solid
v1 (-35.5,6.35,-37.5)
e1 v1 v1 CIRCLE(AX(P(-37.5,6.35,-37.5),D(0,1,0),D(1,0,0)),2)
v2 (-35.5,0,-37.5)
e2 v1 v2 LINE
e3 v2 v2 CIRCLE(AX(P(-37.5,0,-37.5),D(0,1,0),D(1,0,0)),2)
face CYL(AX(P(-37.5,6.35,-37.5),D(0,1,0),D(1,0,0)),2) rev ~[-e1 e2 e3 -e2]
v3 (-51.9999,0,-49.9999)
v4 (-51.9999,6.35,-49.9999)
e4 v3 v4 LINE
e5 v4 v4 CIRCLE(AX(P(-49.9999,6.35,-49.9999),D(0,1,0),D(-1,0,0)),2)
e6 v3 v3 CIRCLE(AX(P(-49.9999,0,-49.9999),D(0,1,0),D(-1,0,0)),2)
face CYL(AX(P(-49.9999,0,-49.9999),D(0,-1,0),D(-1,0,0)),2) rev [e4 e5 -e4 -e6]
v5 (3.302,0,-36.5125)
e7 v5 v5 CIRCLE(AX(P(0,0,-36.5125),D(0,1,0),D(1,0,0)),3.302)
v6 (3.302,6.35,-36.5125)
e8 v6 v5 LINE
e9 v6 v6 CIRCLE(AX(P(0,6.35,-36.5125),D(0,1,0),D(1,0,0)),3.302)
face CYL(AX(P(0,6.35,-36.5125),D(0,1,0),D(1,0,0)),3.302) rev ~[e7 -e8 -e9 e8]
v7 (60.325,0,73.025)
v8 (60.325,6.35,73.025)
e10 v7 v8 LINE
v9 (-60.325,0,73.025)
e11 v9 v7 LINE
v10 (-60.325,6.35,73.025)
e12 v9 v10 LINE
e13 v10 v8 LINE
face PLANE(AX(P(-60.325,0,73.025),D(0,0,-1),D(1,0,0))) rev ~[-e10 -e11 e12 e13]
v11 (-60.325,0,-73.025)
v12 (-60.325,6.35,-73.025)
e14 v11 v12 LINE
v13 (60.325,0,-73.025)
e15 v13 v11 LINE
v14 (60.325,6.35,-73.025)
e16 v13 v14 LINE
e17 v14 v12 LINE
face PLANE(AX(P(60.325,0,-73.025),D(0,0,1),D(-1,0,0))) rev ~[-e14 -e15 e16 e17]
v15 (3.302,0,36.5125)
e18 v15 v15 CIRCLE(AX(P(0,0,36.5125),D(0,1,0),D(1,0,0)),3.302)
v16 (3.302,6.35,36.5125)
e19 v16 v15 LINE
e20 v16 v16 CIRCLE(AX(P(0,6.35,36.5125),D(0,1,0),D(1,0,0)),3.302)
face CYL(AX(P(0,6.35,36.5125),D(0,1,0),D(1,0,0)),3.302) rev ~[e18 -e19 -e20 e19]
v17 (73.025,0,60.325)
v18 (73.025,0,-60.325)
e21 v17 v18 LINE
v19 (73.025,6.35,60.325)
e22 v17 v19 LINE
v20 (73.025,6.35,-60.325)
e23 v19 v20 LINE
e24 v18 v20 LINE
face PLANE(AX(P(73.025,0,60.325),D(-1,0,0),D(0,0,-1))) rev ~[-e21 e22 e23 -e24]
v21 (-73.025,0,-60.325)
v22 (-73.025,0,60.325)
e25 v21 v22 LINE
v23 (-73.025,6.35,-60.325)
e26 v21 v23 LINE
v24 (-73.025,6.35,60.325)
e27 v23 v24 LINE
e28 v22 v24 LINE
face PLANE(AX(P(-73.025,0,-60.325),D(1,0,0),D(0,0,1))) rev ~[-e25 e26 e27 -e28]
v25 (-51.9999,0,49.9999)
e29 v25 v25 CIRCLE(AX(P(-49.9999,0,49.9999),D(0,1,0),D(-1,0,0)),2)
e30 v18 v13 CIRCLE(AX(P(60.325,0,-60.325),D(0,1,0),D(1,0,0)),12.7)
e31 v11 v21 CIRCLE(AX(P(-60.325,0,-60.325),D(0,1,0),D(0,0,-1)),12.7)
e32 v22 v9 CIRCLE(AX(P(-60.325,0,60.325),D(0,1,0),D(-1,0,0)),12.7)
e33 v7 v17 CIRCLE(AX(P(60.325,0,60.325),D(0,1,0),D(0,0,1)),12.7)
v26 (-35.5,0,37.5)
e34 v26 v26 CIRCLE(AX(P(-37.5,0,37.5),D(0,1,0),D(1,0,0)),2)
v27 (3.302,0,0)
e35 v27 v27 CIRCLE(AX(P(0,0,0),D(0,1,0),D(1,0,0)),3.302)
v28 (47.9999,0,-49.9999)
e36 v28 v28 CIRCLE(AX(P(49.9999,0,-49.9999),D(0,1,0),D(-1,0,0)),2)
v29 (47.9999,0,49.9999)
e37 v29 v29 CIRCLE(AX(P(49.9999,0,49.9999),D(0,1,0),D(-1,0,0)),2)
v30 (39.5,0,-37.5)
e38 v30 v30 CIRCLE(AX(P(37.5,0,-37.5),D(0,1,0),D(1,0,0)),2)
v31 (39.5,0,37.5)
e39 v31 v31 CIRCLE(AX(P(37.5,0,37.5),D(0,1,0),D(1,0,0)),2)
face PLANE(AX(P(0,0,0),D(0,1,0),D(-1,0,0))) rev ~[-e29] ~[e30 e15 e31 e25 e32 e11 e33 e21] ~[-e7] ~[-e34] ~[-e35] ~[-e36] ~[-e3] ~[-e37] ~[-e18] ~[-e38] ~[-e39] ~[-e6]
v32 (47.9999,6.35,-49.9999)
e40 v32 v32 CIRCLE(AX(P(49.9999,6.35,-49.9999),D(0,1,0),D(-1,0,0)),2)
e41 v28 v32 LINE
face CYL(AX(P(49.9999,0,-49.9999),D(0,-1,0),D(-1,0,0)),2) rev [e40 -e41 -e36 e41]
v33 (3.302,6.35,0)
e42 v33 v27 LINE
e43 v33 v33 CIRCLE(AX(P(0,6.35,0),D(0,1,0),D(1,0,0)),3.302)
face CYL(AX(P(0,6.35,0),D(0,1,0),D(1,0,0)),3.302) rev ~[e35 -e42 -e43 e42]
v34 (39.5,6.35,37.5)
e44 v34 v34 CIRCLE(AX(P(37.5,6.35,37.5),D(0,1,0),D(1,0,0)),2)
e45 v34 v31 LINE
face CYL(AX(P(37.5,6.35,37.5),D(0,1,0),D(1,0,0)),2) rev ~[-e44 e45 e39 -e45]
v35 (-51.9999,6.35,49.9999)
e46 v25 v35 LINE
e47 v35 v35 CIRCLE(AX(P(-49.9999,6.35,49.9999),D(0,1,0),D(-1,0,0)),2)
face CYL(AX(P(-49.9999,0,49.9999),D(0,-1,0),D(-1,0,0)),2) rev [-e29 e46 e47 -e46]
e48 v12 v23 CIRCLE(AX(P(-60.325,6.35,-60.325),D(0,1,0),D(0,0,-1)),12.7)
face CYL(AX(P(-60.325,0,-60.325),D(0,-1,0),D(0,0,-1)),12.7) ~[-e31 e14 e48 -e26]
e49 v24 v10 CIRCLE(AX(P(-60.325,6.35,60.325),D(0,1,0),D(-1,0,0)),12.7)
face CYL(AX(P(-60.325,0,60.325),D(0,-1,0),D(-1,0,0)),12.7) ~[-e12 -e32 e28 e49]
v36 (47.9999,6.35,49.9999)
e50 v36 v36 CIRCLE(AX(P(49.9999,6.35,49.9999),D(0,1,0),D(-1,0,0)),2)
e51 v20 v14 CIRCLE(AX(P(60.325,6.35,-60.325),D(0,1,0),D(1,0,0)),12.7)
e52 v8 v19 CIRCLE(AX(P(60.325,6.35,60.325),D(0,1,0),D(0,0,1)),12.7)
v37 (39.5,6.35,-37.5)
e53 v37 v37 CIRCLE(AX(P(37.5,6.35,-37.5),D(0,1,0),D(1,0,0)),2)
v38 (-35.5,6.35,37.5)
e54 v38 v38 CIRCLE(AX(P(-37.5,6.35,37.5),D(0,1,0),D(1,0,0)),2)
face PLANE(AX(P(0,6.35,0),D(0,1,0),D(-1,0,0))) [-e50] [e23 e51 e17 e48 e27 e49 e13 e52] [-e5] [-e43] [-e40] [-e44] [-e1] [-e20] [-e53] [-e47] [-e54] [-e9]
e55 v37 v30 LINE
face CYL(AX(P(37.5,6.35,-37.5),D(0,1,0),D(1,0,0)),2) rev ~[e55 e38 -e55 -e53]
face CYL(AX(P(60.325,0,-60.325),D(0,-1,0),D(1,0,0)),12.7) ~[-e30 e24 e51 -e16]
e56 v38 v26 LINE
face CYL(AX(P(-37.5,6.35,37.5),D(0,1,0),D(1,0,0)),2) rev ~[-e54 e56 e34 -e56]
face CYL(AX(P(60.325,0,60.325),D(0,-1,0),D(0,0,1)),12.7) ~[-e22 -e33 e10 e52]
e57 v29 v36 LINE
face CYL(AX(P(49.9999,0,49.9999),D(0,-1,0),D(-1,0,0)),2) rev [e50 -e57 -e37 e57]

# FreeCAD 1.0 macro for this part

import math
import FreeCAD as App
import Part
import Sketcher
from FreeCAD import Vector
Q = App.Units.Quantity

doc = App.newDocument("Part")
body = doc.addObject("PartDesign::Body", "Body")

# Sketch on XZ plane
sketch1 = body.newObject("Sketcher::SketchObject", "Sketch")
sketch1.AttachmentSupport = (doc.getObject("XZ_Plane"), [""])
sketch1.MapMode = "FlatFace"
sketch1.addGeometry(Part.ArcOfCircle(Part.Circle(Vector(-60.3, 60.3, 0), Vector(0, 0, 1), 12.7), math.radians(90), math.radians(180)), False)
sketch1.addGeometry(Part.LineSegment(Vector(-60.3, 73, 0), Vector(60.3, 73, 0)), False)
sketch1.addGeometry(Part.ArcOfCircle(Part.Circle(Vector(60.3, 60.3, 0), Vector(0, 0, 1), 12.7), math.radians(0), math.radians(90)), False)
sketch1.addGeometry(Part.LineSegment(Vector(73, 60.3, 0), Vector(73, -60.3, 0)), False)
sketch1.addGeometry(Part.ArcOfCircle(Part.Circle(Vector(60.3, -60.3, 0), Vector(0, 0, 1), 12.7), math.radians(-90), math.radians(0)), False)
sketch1.addGeometry(Part.LineSegment(Vector(60.3, -73, 0), Vector(-60.3, -73, 0)), False)
sketch1.addGeometry(Part.ArcOfCircle(Part.Circle(Vector(-60.3, -60.3, 0), Vector(0, 0, 1), 12.7), math.radians(180), math.radians(270)), False)
sketch1.addGeometry(Part.LineSegment(Vector(-73, -60.3, 0), Vector(-73, 60.3, 0)), False)
sketch1.addGeometry(Part.Circle(Vector(50, -50, 0), Vector(0, 0, 1), 2), False)
sketch1.addGeometry(Part.Circle(Vector(-50, -50, 0), Vector(0, 0, 1), 2), False)
sketch1.addGeometry(Part.Circle(Vector(50, 50, 0), Vector(0, 0, 1), 2), False)
sketch1.addGeometry(Part.Circle(Vector(-50, 50, 0), Vector(0, 0, 1), 2), False)
sketch1.addConstraint(Sketcher.Constraint("Tangent", 0, 1, 1, 1))
sketch1.addConstraint(Sketcher.Constraint("Tangent", 1, 2, 2, 2))
sketch1.addConstraint(Sketcher.Constraint("Tangent", 2, 1, 3, 1))
sketch1.addConstraint(Sketcher.Constraint("Tangent", 3, 2, 4, 2))
sketch1.addConstraint(Sketcher.Constraint("Tangent", 4, 1, 5, 1))
sketch1.addConstraint(Sketcher.Constraint("Tangent", 5, 2, 6, 2))
sketch1.addConstraint(Sketcher.Constraint("Tangent", 6, 1, 7, 1))
sketch1.addConstraint(Sketcher.Constraint("Tangent", 7, 2, 0, 2))
sketch1.addConstraint(Sketcher.Constraint("Horizontal", 1))
sketch1.addConstraint(Sketcher.Constraint("Vertical", 3))
sketch1.addConstraint(Sketcher.Constraint("Horizontal", 5))
sketch1.addConstraint(Sketcher.Constraint("Vertical", 7))
sketch1.addConstraint(Sketcher.Constraint("Equal", 0, 2))
sketch1.addConstraint(Sketcher.Constraint("Equal", 2, 4))
sketch1.addConstraint(Sketcher.Constraint("Equal", 4, 6))
sketch1.addConstraint(Sketcher.Constraint("Equal", 8, 9))
sketch1.addConstraint(Sketcher.Constraint("Equal", 9, 10))
sketch1.addConstraint(Sketcher.Constraint("Equal", 10, 11))
sketch1.addConstraint(Sketcher.Constraint("Symmetric", 0, 3, 4, 3, -1, 1))
sketch1.addConstraint(Sketcher.Constraint("Symmetric", 9, 3, 10, 3, -1, 1))
sketch1.addConstraint(Sketcher.Constraint("Symmetric", 8, 3, 11, 3, -1, 1))
sketch1.addConstraint(Sketcher.Constraint("Symmetric", 8, 3, 9, 3, -2))
sketch1.addConstraint(Sketcher.Constraint("Equal", 5, 3))
sketch1.addConstraint(Sketcher.Constraint("Radius", 0, Q("0.5 in")))
sketch1.addConstraint(Sketcher.Constraint("Diameter", 8, 4.0))
sketch1.addConstraint(Sketcher.Constraint("DistanceY", -1, 1, 0, 1, Q("2.875 in")))
sketch1.addConstraint(Sketcher.Constraint("DistanceX", 9, 3, 8, 3, Q("3.937 in")))
sketch1.addConstraint(Sketcher.Constraint("DistanceY", 8, 3, 10, 3, Q("3.937 in")))
pad1 = body.newObject("PartDesign::Pad", "Pad")
pad1.Profile = sketch1
pad1.Length = Q("0.25 in")
pad1.Reversed = True

# Sketch on XZ plane
sketch2 = body.newObject("Sketcher::SketchObject", "Sketch001")
sketch2.AttachmentSupport = (doc.getObject("XZ_Plane"), [""])
sketch2.MapMode = "FlatFace"
sketch2.AttachmentOffset = App.Placement(Vector(0, 0, -0.25 * 25.4), App.Rotation())
sketch2.addGeometry(Part.Circle(Vector(-37.5, 37.5, 0), Vector(0, 0, 1), 2), False)
sketch2.addGeometry(Part.Circle(Vector(-37.5, -37.5, 0), Vector(0, 0, 1), 2), False)
sketch2.addGeometry(Part.Circle(Vector(37.5, 37.5, 0), Vector(0, 0, 1), 2), False)
sketch2.addGeometry(Part.Circle(Vector(37.5, -37.5, 0), Vector(0, 0, 1), 2), False)
sketch2.addConstraint(Sketcher.Constraint("Equal", 0, 1))
sketch2.addConstraint(Sketcher.Constraint("Equal", 1, 2))
sketch2.addConstraint(Sketcher.Constraint("Equal", 2, 3))
sketch2.addConstraint(Sketcher.Constraint("Symmetric", 1, 3, 2, 3, -1, 1))
sketch2.addConstraint(Sketcher.Constraint("Symmetric", 0, 3, 3, 3, -1, 1))
sketch2.addConstraint(Sketcher.Constraint("Symmetric", 0, 3, 2, 3, -2))
sketch2.addConstraint(Sketcher.Constraint("Diameter", 0, 4.0))
sketch2.addConstraint(Sketcher.Constraint("DistanceY", 1, 3, 0, 3, 75.0))
sketch2.addConstraint(Sketcher.Constraint("DistanceX", 0, 3, 2, 3, 75.0))
pocket1 = body.newObject("PartDesign::Pocket", "Pocket")
pocket1.Profile = sketch2
pocket1.Length = Q("0.25 in")
pocket1.Reversed = True

# Sketch on XZ plane
sketch3 = body.newObject("Sketcher::SketchObject", "Sketch002")
sketch3.AttachmentSupport = (doc.getObject("XZ_Plane"), [""])
sketch3.MapMode = "FlatFace"
sketch3.AttachmentOffset = App.Placement(Vector(0, 0, -0.25 * 25.4), App.Rotation())
sketch3.addGeometry(Part.Circle(Vector(0, 36.5, 0), Vector(0, 0, 1), 3.3), False)
sketch3.addGeometry(Part.Circle(Vector(0, 0, 0), Vector(0, 0, 1), 3.3), False)
sketch3.addGeometry(Part.Circle(Vector(0, -36.5, 0), Vector(0, 0, 1), 3.3), False)
sketch3.addConstraint(Sketcher.Constraint("Coincident", 1, 3, -1, 1))
sketch3.addConstraint(Sketcher.Constraint("Equal", 0, 1))
sketch3.addConstraint(Sketcher.Constraint("Equal", 1, 2))
sketch3.addConstraint(Sketcher.Constraint("Symmetric", 0, 3, 2, 3, -1, 1))
sketch3.addConstraint(Sketcher.Constraint("PointOnObject", 0, 3, -2))
sketch3.addConstraint(Sketcher.Constraint("Diameter", 0, Q("0.26 in")))
sketch3.addConstraint(Sketcher.Constraint("DistanceY", -1, 1, 0, 3, Q("1.4375 in")))
pocket2 = body.newObject("PartDesign::Pocket", "Pocket001")
pocket2.Profile = sketch3
pocket2.Length = Q("0.25 in")
pocket2.Reversed = True

doc.recompute()
